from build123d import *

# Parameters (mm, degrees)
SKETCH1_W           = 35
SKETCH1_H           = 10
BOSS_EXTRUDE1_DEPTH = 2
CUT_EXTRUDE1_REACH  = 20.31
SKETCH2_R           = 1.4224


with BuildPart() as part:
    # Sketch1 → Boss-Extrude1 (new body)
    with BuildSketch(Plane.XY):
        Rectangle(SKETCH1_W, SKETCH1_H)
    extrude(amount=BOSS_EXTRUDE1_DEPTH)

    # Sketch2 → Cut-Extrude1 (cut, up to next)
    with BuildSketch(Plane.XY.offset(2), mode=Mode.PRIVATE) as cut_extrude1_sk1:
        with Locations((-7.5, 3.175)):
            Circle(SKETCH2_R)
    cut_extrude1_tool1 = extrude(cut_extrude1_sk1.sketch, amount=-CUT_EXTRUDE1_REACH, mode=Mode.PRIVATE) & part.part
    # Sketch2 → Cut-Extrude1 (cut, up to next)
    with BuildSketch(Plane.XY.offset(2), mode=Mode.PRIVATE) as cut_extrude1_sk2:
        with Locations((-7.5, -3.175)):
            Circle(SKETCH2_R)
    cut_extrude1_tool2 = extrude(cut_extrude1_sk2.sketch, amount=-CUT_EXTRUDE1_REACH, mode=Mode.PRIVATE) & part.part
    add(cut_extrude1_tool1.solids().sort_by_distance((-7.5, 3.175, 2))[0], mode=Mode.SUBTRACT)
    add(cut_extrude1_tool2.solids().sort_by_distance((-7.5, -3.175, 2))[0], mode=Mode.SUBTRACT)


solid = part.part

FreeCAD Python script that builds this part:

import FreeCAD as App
import Part
import Sketcher

V = App.Vector
Q = App.Units.Quantity


def add_polygon(sketch, points):
    """Adds a closed chain of lines whose ends are joined by coincident constraints."""
    first, n = sketch.GeometryCount, len(points)
    for a, b in zip(points, points[1:] + points[:1]):
        sketch.addGeometry(Part.LineSegment(App.Vector(*a, 0), App.Vector(*b, 0)), False)
    for i in range(n):
        sketch.addConstraint(Sketcher.Constraint("Coincident", first + i, 2, first + (i + 1) % n, 1))

doc = App.newDocument("Part")
body = doc.addObject("PartDesign::Body", "Body")

# Sketch on XY plane
sketch1 = doc.addObject("Sketcher::SketchObject", "Sketch")
body.addObject(sketch1)
sketch1.AttachmentSupport = (doc.XY_Plane, [""])
sketch1.MapMode = "FlatFace"
add_polygon(sketch1, [(-18, 5), (-18, -5), (18, -5), (18, 5)])  # lines 0-3
sketch1.addConstraint([
    Sketcher.Constraint("Vertical", 0),
    Sketcher.Constraint("Horizontal", 1),
    Sketcher.Constraint("Vertical", 2),
    Sketcher.Constraint("Horizontal", 3),
    Sketcher.Constraint("Symmetric", 0, 2, 2, 2, -1, 1),
    Sketcher.Constraint("DistanceX", 1, 1, 1, 2, Q("35 mm")),
    Sketcher.Constraint("DistanceY", 0, 2, 0, 1, Q("10 mm")),
])
pad1 = doc.addObject("PartDesign::Pad", "Pad")
body.addObject(pad1)
pad1.Profile = sketch1
pad1.Length = 2

# Sketch on XY plane
sketch2 = doc.addObject("Sketcher::SketchObject", "Sketch001")
body.addObject(sketch2)
sketch2.AttachmentSupport = (doc.XY_Plane, [""])
sketch2.MapMode = "FlatFace"
sketch2.AttachmentOffset = App.Placement(V(0, 0, 2), App.Rotation())
sketch2.addGeometry(Part.Circle(V(-7.5, 3.2, 0), V(0, 0, 1), 1.4), False)
sketch2.addConstraint([
    Sketcher.Constraint("Diameter", 0, Q("2.8448 mm")),
    Sketcher.Constraint("DistanceX", 0, 3, -1, 1, Q("7.5 mm")),
    Sketcher.Constraint("DistanceY", -1, 1, 0, 3, Q("3.175 mm")),
])
pocket1 = doc.addObject("PartDesign::Pocket", "Pocket")
body.addObject(pocket1)
pocket1.Profile = sketch2
pocket1.Type = "UpToFirst"

# Sketch on XY plane
sketch3 = doc.addObject("Sketcher::SketchObject", "Sketch002")
body.addObject(sketch3)
sketch3.AttachmentSupport = (doc.XY_Plane, [""])
sketch3.MapMode = "FlatFace"
sketch3.AttachmentOffset = App.Placement(V(0, 0, 2), App.Rotation())
sketch3.addGeometry(Part.Circle(V(-7.5, -3.2, 0), V(0, 0, 1), 1.4), False)
sketch3.addConstraint([
    Sketcher.Constraint("Diameter", 0, Q("2.8448 mm")),
    Sketcher.Constraint("DistanceX", 0, 3, -1, 1, Q("7.5 mm")),
    Sketcher.Constraint("DistanceY", 0, 3, -1, 1, Q("3.175 mm")),
])
pocket2 = doc.addObject("PartDesign::Pocket", "Pocket001")
body.addObject(pocket2)
pocket2.Profile = sketch3
pocket2.Type = "UpToFirst"

doc.recompute()
